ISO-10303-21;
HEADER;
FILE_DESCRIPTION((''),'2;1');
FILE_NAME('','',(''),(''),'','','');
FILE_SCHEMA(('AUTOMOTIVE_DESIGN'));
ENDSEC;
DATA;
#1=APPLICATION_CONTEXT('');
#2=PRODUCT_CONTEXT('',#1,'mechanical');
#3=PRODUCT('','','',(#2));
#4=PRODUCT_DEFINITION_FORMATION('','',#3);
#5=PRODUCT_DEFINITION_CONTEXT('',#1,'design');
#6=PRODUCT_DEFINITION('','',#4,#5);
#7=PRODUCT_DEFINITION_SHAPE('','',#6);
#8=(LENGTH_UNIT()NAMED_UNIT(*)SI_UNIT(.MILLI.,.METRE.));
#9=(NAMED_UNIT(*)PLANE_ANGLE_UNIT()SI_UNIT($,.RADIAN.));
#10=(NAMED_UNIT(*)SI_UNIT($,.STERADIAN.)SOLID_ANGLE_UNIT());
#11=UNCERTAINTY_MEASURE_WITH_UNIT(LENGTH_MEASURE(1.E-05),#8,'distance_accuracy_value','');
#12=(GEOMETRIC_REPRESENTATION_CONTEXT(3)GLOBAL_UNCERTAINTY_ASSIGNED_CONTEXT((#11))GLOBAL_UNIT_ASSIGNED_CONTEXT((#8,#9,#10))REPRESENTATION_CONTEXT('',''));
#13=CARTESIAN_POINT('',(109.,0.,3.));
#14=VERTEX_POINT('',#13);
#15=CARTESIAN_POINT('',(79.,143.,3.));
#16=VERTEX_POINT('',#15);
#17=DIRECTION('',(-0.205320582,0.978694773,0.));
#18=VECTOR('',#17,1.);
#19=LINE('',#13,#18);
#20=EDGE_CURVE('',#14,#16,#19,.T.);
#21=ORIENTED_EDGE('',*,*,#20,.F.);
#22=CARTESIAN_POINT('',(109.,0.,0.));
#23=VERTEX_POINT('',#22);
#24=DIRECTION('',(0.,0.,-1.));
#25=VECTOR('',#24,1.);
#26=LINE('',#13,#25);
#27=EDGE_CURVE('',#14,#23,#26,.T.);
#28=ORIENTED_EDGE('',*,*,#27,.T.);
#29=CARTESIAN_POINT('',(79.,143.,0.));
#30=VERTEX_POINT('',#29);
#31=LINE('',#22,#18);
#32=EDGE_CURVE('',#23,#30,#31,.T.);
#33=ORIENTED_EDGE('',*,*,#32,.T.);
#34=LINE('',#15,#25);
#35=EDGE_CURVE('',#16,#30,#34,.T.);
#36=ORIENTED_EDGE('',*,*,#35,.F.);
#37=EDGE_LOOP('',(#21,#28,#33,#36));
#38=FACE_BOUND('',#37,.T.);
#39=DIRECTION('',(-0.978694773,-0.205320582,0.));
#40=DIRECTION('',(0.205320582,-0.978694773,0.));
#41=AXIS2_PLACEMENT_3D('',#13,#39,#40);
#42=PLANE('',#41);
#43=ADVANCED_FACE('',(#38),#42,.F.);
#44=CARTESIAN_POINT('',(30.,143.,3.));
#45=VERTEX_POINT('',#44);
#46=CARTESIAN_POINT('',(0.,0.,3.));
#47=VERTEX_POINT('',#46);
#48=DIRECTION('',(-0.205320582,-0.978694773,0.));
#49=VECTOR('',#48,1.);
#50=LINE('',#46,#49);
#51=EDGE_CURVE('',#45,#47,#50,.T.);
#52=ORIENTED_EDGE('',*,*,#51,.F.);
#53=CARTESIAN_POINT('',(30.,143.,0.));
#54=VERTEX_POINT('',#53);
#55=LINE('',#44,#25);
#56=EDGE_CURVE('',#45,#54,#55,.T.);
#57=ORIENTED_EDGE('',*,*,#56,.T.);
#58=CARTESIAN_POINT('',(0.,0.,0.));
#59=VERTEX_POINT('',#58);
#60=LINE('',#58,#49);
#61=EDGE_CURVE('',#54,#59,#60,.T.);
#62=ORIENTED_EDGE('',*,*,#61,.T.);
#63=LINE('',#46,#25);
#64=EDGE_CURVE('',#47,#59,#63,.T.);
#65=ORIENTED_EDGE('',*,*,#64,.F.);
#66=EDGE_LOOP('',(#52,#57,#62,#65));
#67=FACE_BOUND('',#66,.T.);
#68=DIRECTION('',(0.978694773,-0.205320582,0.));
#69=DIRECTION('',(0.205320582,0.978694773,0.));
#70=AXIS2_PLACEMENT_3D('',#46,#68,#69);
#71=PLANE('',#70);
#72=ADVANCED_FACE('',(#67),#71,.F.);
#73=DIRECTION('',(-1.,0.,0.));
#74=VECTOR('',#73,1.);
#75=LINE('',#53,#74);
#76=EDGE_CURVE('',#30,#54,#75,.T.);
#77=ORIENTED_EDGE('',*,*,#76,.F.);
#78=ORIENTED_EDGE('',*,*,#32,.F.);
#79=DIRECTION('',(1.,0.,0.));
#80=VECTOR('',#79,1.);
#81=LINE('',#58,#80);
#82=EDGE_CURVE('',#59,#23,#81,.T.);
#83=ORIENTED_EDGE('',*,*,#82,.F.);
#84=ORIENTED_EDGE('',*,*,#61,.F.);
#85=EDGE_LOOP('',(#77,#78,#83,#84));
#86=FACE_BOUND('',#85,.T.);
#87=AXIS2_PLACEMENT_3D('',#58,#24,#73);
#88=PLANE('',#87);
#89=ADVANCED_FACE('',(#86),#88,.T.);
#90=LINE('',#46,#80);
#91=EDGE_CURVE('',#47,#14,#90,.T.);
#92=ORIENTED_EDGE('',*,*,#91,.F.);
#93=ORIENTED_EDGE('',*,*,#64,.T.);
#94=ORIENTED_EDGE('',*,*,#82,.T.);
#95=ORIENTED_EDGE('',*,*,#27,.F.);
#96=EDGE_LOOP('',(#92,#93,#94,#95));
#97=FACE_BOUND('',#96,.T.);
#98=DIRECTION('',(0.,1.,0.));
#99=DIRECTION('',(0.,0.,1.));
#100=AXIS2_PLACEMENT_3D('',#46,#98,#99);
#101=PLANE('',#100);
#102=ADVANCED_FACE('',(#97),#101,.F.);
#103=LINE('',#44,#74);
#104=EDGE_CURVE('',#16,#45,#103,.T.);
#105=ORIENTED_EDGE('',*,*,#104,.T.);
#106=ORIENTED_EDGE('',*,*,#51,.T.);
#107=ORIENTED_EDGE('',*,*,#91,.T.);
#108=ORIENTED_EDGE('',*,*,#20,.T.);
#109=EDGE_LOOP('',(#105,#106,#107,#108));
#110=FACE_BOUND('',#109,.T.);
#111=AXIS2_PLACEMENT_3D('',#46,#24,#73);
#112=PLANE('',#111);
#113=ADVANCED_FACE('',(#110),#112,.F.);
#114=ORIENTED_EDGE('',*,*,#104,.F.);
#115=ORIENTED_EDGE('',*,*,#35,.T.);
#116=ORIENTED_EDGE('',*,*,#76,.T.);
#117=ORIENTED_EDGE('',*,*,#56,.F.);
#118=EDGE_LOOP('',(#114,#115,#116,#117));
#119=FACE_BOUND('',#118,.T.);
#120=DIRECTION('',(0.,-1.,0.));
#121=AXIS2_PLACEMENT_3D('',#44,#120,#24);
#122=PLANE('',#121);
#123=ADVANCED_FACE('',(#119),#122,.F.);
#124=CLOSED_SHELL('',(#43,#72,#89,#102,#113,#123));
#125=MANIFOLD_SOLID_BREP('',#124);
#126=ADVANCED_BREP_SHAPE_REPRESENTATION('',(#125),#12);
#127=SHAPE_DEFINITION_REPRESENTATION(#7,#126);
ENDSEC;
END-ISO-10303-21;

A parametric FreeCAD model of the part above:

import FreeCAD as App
import Part
import Sketcher


def add_polygon(sketch, points):
    """Adds a closed chain of lines whose ends are joined by coincident constraints."""
    first, n = sketch.GeometryCount, len(points)
    for a, b in zip(points, points[1:] + points[:1]):
        sketch.addGeometry(Part.LineSegment(App.Vector(*a, 0), App.Vector(*b, 0)), False)
    for i in range(n):
        sketch.addConstraint(Sketcher.Constraint("Coincident", first + i, 2, first + (i + 1) % n, 1))

doc = App.newDocument("Part")
params = doc.addObject("Spreadsheet::Sheet", "Params")
for row, (alias, value) in enumerate([
    ("sketch1_width", "109 mm"),
    ("sketch1_width2", "49 mm"),
    ("pad1_length", "3 mm"),
], start=1):
    params.set(f"A{row}", alias)
    params.set(f"B{row}", "=" + value)
    params.setAlias(f"B{row}", alias)

body = doc.addObject("PartDesign::Body", "Body")

# Sketch on XY plane
sketch1 = body.newObject("Sketcher::SketchObject", "Sketch")
sketch1.AttachmentSupport = (doc.getObject("XY_Plane"), [""])
sketch1.MapMode = "FlatFace"
add_polygon(sketch1, [(0, 0), (109, 0), (79, 143), (30, 143)])  # lines 0-3
sketch1.addConstraint([
    Sketcher.Constraint("Horizontal", 0),
    Sketcher.Constraint("Horizontal", 2),
    Sketcher.Constraint("Coincident", 3, 2, -1, 1),
    Sketcher.Constraint("Equal", 1, 3),
    Sketcher.Constraint("DistanceX", 0, 1, 0, 2, 109.0),
    Sketcher.Constraint("DistanceX", 2, 2, 2, 1, 49.0),
    Sketcher.Constraint("DistanceY", -1, 1, 1, 2, 143.0),
])
sketch1.setExpression("Constraints[8]", "Params.sketch1_width")
sketch1.setExpression("Constraints[9]", "Params.sketch1_width2")
pad1 = body.newObject("PartDesign::Pad", "Pad")
pad1.Profile = sketch1
pad1.setExpression("Length", "Params.pad1_length")

doc.recompute()
